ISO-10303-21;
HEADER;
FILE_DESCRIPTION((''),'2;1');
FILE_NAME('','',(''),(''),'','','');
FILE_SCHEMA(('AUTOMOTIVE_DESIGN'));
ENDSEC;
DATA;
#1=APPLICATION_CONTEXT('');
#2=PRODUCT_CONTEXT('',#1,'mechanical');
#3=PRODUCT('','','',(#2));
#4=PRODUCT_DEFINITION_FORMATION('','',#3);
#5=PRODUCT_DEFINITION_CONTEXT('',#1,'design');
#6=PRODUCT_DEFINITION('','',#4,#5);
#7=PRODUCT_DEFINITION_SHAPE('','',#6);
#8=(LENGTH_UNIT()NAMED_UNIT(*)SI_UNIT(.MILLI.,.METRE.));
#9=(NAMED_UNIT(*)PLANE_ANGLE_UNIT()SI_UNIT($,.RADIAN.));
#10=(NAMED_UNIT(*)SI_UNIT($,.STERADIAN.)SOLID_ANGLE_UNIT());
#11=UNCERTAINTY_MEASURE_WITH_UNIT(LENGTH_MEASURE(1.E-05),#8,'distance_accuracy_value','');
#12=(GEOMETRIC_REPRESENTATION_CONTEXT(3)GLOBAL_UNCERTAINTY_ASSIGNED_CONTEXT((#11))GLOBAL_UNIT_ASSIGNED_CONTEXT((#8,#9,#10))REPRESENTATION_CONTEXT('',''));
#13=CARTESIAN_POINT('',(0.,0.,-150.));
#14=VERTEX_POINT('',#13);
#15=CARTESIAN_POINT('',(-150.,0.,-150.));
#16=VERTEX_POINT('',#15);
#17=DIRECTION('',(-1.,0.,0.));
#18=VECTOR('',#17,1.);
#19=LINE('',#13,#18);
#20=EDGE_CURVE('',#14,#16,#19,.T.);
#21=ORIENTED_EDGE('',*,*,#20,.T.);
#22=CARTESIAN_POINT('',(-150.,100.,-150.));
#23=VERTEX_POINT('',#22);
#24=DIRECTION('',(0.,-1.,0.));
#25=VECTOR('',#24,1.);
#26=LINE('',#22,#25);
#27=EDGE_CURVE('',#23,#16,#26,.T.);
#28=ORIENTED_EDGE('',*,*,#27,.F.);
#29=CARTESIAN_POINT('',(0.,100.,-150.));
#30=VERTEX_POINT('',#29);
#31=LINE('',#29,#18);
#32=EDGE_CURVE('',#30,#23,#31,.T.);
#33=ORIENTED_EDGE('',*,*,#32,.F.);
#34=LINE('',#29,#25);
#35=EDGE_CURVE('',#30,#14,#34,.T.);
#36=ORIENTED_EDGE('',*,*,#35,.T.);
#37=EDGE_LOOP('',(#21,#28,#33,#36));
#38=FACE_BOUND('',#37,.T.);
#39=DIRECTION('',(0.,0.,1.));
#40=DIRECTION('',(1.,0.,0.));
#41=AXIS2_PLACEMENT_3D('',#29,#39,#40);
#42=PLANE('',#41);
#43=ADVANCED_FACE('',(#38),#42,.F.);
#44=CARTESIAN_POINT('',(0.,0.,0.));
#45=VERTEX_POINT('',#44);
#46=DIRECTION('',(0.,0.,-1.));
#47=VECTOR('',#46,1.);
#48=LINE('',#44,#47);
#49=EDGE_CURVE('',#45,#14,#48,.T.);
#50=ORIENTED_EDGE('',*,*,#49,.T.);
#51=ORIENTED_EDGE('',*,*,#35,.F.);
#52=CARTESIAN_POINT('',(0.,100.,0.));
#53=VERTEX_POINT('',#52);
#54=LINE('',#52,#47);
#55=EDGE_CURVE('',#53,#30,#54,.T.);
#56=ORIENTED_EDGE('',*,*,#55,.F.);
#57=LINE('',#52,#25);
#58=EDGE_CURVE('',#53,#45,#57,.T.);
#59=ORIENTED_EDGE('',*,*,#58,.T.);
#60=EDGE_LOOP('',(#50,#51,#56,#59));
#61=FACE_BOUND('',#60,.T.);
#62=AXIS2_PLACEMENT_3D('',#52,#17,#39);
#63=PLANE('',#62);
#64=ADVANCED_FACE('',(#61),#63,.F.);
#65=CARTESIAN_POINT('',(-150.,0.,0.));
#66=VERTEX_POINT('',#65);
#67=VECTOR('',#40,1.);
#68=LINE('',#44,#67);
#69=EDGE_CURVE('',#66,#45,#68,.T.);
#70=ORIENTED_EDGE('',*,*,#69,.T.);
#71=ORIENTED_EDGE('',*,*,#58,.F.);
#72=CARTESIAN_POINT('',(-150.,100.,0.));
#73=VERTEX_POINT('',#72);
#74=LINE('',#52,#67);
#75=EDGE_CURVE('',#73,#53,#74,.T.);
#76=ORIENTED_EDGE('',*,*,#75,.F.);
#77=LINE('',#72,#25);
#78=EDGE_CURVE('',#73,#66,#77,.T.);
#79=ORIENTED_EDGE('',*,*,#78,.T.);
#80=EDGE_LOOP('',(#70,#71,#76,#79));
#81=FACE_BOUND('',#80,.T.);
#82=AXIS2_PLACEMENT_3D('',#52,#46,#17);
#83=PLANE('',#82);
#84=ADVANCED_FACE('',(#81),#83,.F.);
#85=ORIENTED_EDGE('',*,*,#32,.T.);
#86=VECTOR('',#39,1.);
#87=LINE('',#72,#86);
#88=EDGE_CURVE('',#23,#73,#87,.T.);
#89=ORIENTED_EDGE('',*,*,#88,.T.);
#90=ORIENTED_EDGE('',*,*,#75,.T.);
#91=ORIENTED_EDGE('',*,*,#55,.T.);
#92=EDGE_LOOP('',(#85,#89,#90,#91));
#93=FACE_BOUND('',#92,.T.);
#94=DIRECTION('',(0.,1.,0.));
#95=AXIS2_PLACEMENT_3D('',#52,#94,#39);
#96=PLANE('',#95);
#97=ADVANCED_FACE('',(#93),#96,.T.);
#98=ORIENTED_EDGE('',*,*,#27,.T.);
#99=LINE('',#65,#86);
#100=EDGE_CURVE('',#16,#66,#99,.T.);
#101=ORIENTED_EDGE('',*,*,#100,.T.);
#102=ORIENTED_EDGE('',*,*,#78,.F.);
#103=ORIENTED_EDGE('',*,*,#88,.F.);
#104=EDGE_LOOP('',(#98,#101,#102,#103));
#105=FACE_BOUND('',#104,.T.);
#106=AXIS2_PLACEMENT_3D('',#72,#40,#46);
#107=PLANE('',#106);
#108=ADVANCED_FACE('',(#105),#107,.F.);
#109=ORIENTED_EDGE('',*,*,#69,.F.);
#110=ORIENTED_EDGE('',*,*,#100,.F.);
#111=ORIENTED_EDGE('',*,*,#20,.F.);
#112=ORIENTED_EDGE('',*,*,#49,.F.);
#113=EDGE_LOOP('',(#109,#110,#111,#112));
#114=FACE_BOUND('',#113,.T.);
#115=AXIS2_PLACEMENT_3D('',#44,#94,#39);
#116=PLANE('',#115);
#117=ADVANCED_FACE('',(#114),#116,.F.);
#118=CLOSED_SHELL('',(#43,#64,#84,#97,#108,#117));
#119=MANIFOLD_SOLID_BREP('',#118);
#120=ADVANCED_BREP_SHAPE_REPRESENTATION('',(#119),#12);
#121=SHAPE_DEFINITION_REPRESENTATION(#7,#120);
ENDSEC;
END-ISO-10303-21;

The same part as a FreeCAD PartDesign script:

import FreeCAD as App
import Part
import Sketcher
from FreeCAD import Vector
Q = App.Units.Quantity

doc = App.newDocument("Part")
params = doc.addObject("Spreadsheet::Sheet", "Params")
for row, (alias, value) in enumerate([
    ("sketch1_width", "150 mm"),
    ("pad1_length", "100 mm"),
], start=1):
    params.set(f"A{row}", alias)
    params.set(f"B{row}", "=" + value)
    params.setAlias(f"B{row}", alias)

body = doc.addObject("PartDesign::Body", "Body")

sketch1 = body.newObject("Sketcher::SketchObject", "Sketch")
sketch1.AttachmentSupport = (doc.getObject("XZ_Plane"), [""])
sketch1.MapMode = "FlatFace"
sketch1.addGeometry(Part.LineSegment(Vector(-150, -150, 0), Vector(-150, 0, 0)), False)
sketch1.addGeometry(Part.LineSegment(Vector(-150, 0, 0), Vector(0, 0, 0)), False)
sketch1.addGeometry(Part.LineSegment(Vector(0, 0, 0), Vector(0, -150, 0)), False)
sketch1.addGeometry(Part.LineSegment(Vector(0, -150, 0), Vector(-150, -150, 0)), False)
sketch1.addConstraint(Sketcher.Constraint("Coincident", 0, 2, 1, 1))
sketch1.addConstraint(Sketcher.Constraint("Coincident", 1, 2, 2, 1))
sketch1.addConstraint(Sketcher.Constraint("Coincident", 2, 2, 3, 1))
sketch1.addConstraint(Sketcher.Constraint("Coincident", 3, 2, 0, 1))
sketch1.addConstraint(Sketcher.Constraint("Vertical", 0))
sketch1.addConstraint(Sketcher.Constraint("Horizontal", 1))
sketch1.addConstraint(Sketcher.Constraint("Vertical", 2))
sketch1.addConstraint(Sketcher.Constraint("Horizontal", 3))
sketch1.addConstraint(Sketcher.Constraint("Coincident", 1, 2, -1, 1))
sketch1.addConstraint(Sketcher.Constraint("Equal", 3, 0))
sketch1.addConstraint(Sketcher.Constraint("DistanceX", 1, 1, 1, 2, Q("150 mm")))
sketch1.setExpression("Constraints[10]", "Params.sketch1_width")
pad1 = body.newObject("PartDesign::Pad", "Pad")
pad1.Profile = sketch1
pad1.setExpression("Length", "Params.pad1_length")
pad1.Reversed = True

doc.recompute()
